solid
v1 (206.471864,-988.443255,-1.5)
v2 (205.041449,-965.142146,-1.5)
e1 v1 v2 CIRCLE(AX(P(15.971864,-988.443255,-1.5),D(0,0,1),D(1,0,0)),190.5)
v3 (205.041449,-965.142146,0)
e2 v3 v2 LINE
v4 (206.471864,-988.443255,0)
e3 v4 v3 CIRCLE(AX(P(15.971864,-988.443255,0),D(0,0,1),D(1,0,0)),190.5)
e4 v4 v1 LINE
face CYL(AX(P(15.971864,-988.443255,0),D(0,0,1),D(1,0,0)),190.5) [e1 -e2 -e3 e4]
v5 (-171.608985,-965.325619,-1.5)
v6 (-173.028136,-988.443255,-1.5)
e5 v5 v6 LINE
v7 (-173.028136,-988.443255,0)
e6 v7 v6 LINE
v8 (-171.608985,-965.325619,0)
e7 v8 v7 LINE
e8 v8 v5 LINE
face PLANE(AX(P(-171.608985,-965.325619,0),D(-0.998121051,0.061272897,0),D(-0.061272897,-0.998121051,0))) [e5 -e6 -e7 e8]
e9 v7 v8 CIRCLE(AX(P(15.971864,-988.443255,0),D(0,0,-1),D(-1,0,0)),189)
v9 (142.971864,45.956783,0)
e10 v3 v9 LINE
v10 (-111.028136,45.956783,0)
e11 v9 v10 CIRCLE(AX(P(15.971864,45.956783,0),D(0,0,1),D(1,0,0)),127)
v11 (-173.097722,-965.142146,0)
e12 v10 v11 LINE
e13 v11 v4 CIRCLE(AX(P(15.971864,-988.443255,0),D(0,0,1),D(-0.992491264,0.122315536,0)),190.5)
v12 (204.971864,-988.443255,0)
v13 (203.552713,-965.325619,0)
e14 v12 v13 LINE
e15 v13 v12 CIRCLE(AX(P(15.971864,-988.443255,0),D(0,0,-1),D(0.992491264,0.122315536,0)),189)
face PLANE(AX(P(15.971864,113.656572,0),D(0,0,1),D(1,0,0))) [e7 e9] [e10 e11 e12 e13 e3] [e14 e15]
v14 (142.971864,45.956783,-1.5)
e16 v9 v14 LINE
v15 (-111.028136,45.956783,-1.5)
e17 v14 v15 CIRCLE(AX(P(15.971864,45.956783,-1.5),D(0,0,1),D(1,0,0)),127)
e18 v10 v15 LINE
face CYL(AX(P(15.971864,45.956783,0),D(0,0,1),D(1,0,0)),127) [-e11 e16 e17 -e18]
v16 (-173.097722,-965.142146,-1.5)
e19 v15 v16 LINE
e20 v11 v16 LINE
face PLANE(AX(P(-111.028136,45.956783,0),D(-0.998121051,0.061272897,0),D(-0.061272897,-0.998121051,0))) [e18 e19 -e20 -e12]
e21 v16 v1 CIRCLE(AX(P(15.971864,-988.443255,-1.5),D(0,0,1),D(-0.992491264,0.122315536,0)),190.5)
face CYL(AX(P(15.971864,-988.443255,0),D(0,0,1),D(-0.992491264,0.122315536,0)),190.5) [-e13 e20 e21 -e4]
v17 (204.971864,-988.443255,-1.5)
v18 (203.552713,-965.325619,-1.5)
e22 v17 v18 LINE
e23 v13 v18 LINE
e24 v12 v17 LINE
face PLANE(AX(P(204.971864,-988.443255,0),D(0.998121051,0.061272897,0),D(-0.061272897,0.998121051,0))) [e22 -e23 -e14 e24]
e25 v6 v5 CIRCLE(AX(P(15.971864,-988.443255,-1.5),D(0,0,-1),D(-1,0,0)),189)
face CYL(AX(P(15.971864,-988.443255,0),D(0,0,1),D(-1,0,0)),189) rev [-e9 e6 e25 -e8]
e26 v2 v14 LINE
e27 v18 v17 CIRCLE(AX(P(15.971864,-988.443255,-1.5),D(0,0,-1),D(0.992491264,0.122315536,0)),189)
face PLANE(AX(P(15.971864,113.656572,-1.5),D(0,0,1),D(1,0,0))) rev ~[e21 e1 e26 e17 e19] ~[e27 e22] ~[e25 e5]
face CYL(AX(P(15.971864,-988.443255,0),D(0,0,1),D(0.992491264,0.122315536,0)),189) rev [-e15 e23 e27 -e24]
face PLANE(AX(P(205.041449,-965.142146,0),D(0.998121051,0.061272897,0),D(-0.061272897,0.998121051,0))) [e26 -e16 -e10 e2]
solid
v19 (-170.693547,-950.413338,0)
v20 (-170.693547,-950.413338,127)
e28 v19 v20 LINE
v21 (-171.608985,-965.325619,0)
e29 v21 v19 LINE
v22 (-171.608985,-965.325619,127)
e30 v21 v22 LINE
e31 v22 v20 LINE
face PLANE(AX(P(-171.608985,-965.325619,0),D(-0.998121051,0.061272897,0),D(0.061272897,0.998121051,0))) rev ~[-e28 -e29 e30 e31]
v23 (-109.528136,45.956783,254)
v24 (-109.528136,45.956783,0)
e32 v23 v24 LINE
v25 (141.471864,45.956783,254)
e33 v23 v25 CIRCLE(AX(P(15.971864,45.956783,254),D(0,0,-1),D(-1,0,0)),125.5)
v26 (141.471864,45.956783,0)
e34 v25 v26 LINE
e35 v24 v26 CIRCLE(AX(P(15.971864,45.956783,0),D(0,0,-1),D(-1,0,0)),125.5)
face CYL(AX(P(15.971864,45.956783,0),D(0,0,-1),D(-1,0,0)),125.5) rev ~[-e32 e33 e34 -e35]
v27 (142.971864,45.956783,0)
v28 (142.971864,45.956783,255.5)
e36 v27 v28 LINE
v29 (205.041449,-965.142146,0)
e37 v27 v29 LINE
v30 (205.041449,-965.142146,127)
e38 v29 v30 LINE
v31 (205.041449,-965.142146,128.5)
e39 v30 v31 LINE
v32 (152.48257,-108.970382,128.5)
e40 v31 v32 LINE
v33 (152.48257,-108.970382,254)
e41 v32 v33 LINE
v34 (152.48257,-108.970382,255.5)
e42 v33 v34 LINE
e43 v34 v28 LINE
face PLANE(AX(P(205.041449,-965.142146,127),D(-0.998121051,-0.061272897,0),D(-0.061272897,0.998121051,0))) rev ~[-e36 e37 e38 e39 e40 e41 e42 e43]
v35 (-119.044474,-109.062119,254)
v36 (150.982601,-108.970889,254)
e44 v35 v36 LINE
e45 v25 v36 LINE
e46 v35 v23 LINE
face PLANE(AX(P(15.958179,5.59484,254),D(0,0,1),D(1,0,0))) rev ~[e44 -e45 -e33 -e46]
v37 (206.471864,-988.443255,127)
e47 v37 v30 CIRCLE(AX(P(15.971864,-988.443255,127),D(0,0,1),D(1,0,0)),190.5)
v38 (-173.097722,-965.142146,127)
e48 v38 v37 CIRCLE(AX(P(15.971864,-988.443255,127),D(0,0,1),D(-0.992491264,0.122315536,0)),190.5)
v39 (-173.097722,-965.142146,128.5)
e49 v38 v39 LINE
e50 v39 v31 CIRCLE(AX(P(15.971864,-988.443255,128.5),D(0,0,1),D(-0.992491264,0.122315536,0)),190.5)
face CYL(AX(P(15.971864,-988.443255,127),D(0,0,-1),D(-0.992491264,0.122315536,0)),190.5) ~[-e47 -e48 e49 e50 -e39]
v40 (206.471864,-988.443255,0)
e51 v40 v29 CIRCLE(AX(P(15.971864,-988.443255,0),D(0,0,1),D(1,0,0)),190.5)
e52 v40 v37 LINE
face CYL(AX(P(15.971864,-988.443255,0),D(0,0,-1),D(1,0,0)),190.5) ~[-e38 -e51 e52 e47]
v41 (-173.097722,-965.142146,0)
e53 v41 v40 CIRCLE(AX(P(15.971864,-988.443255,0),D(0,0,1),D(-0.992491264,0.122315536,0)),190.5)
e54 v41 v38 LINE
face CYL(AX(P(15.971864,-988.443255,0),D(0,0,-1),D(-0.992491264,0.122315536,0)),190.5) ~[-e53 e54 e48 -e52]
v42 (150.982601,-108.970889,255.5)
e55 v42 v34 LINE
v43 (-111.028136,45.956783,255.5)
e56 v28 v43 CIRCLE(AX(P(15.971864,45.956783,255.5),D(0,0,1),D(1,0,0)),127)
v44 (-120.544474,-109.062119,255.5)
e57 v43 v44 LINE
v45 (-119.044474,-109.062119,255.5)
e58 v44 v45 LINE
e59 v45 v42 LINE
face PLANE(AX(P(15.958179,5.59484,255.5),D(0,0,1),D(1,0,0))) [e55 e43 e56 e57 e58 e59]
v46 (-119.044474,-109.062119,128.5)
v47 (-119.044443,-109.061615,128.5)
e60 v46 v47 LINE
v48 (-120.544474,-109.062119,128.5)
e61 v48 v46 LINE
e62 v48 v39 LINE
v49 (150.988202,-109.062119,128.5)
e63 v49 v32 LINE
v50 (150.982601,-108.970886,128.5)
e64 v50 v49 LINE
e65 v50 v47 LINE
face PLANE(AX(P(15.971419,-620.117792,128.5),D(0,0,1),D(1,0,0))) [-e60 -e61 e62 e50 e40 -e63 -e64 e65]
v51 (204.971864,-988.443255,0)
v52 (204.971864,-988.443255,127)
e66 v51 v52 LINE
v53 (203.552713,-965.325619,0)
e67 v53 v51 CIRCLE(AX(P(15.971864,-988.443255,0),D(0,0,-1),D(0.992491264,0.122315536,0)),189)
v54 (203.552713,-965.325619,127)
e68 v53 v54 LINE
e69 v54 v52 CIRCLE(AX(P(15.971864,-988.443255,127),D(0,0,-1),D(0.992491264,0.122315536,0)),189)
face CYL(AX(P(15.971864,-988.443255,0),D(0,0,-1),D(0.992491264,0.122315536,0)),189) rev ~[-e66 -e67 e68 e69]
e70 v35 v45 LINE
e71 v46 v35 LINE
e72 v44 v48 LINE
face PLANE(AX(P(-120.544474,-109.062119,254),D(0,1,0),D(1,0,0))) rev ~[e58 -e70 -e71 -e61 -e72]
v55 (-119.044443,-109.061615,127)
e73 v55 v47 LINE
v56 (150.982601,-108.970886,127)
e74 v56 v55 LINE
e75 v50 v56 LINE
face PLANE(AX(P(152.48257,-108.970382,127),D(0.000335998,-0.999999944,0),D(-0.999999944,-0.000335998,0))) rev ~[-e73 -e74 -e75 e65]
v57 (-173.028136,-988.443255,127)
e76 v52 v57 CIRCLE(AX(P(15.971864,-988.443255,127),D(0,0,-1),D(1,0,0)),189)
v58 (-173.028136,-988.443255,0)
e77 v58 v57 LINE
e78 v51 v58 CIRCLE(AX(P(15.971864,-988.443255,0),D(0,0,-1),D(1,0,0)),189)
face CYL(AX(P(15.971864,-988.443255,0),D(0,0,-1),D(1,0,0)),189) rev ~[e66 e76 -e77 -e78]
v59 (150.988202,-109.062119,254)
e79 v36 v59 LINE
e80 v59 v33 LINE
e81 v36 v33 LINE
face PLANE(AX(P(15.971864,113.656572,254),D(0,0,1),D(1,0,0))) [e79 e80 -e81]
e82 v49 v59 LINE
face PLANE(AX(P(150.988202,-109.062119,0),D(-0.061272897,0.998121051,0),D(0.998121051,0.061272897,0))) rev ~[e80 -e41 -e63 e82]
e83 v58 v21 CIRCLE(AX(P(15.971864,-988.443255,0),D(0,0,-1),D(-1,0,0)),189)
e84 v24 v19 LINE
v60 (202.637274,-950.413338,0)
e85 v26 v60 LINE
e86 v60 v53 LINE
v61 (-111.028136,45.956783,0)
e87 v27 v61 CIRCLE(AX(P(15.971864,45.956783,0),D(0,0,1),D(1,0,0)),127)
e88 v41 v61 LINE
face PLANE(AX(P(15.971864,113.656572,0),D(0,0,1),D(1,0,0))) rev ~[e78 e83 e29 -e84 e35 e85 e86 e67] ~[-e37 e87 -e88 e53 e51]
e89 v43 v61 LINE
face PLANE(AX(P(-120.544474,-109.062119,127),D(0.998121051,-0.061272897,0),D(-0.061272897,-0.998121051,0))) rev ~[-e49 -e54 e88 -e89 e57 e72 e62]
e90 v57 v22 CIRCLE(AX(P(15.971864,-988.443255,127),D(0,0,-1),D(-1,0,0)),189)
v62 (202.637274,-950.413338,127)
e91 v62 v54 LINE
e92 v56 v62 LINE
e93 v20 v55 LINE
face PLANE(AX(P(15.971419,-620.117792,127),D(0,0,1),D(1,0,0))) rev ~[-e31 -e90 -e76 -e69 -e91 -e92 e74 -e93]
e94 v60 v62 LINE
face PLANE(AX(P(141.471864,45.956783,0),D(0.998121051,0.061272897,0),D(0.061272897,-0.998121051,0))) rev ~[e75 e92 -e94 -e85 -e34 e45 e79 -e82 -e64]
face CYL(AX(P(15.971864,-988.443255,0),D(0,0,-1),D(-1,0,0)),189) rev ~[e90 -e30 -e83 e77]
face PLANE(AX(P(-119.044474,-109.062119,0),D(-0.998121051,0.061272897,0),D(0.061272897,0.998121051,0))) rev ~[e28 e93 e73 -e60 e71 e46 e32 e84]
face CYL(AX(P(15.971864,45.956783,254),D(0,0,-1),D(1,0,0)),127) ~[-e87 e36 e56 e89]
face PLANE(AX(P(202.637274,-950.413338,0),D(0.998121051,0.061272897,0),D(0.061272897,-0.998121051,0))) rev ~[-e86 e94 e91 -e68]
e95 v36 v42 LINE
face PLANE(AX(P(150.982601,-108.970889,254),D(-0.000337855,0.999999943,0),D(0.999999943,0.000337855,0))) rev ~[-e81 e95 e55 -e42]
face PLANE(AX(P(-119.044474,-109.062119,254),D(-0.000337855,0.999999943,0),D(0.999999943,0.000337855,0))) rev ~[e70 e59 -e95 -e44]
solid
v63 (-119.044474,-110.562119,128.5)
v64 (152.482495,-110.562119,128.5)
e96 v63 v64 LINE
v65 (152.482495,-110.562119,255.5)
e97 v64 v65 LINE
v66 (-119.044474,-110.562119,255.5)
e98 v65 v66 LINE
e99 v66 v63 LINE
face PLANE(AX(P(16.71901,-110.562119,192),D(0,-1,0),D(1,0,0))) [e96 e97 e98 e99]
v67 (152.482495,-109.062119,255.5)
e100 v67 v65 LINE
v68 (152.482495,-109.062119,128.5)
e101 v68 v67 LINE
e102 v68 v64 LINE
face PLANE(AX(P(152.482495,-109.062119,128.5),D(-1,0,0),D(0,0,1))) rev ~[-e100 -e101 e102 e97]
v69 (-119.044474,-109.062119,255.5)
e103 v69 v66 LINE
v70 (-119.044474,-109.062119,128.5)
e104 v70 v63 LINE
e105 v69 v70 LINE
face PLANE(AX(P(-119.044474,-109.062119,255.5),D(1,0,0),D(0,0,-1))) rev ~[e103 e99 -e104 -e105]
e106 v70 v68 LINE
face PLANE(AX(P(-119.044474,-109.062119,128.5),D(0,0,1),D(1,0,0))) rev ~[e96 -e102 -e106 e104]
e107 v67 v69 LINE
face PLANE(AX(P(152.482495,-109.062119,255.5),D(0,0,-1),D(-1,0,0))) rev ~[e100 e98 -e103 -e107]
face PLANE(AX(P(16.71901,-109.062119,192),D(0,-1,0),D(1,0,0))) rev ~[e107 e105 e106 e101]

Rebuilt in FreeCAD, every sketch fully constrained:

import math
import FreeCAD as App
import Part
import Sketcher
Q = App.Units.Quantity

doc = App.newDocument("Part")
body = doc.addObject("PartDesign::Body", "Body")

sketch1 = doc.addObject("Sketcher::SketchObject", "Sketch")
body.addObject(sketch1)
sketch1.AttachmentSupport = (doc.XY_Plane, [""])
sketch1.MapMode = "FlatFace"
sketch1.addGeometry(Part.LineSegment(App.Vector(141.5, 46, 0), App.Vector(151, -109.1, 0)), False)
sketch1.addGeometry(Part.LineSegment(App.Vector(151, -109.1, 0), App.Vector(152.5, -109, 0)), False)
sketch1.addGeometry(Part.LineSegment(App.Vector(152.5, -109, 0), App.Vector(143, 46, 0)), False)
sketch1.addGeometry(Part.ArcOfCircle(Part.Circle(App.Vector(16, 46, 0), App.Vector(0, 0, 1), 127), math.radians(0), math.radians(180)), False)
sketch1.addGeometry(Part.LineSegment(App.Vector(-111, 46, 0), App.Vector(-120.5, -109.1, 0)), False)
sketch1.addGeometry(Part.LineSegment(App.Vector(-120.5, -109.1, 0), App.Vector(-119, -109.1, 0)), False)
sketch1.addGeometry(Part.LineSegment(App.Vector(-119, -109.1, 0), App.Vector(-109.5, 46, 0)), False)
sketch1.addGeometry(Part.ArcOfCircle(Part.Circle(App.Vector(16, 46, 0), App.Vector(0, 0, 1), 125.5), math.radians(0), math.radians(180)), False)
sketch1.addConstraint(Sketcher.Constraint("Coincident", 0, 2, 1, 1))
sketch1.addConstraint(Sketcher.Constraint("Coincident", 1, 2, 2, 1))
sketch1.addConstraint(Sketcher.Constraint("Coincident", 2, 2, 3, 1))
sketch1.addConstraint(Sketcher.Constraint("Coincident", 3, 2, 4, 1))
sketch1.addConstraint(Sketcher.Constraint("Coincident", 4, 2, 5, 1))
sketch1.addConstraint(Sketcher.Constraint("Coincident", 5, 2, 6, 1))
sketch1.addConstraint(Sketcher.Constraint("Coincident", 6, 2, 7, 2))
sketch1.addConstraint(Sketcher.Constraint("Coincident", 7, 1, 0, 1))
sketch1.addConstraint(Sketcher.Constraint("Horizontal", 5))
sketch1.addConstraint(Sketcher.Constraint("Coincident", 7, 3, 3, 3))
sketch1.addConstraint(Sketcher.Constraint("Perpendicular", 0, 1))
sketch1.addConstraint(Sketcher.Constraint("Perpendicular", 1, 2))
sketch1.addConstraint(Sketcher.Constraint("Parallel", 4, 6))
sketch1.addConstraint(Sketcher.Constraint("Horizontal", 7, 3, 2, 2))
sketch1.addConstraint(Sketcher.Constraint("Horizontal", 2, 2, 3, 2))
sketch1.addConstraint(Sketcher.Constraint("Horizontal", 0, 2, 4, 2))
sketch1.addConstraint(Sketcher.Constraint("Horizontal", 3, 2, 6, 2))
sketch1.addConstraint(Sketcher.Constraint("Horizontal", 6, 2, 7, 1))
sketch1.addConstraint(Sketcher.Constraint("Equal", 0, 4))
sketch1.addConstraint(Sketcher.Constraint("Radius", 3, Q("127 mm")))
sketch1.addConstraint(Sketcher.Constraint("Radius", 7, Q("125.5 mm")))
sketch1.addConstraint(Sketcher.Constraint("DistanceX", -1, 1, 0, 2, Q("150.988202 mm")))
sketch1.addConstraint(Sketcher.Constraint("DistanceY", 0, 2, 3, 3, Q("155.018902 mm")))
sketch1.addConstraint(Sketcher.Constraint("DistanceY", 0, 2, -1, 1, Q("109.062119 mm")))
sketch1.addConstraint(Sketcher.Constraint("Distance", 0, Q("155.310723 mm")))
pad1 = doc.addObject("PartDesign::Pad", "Pad")
body.addObject(pad1)
pad1.Profile = sketch1
pad1.Length = 254

sketch2 = doc.addObject("Sketcher::SketchObject", "Sketch001")
body.addObject(sketch2)
sketch2.AttachmentSupport = (doc.XY_Plane, [""])
sketch2.MapMode = "FlatFace"
sketch2.addGeometry(Part.ArcOfCircle(Part.Circle(App.Vector(16, -988, 0), App.Vector(0, 0, 1), 191), math.radians(0), math.radians(7.03)), False)
sketch2.addGeometry(Part.LineSegment(App.Vector(205, -965, 0), App.Vector(143, 46, 0)), False)
sketch2.addGeometry(Part.ArcOfCircle(Part.Circle(App.Vector(16, 46, 0), App.Vector(0, 0, 1), 127), math.radians(0), math.radians(180)), False)
sketch2.addGeometry(Part.LineSegment(App.Vector(-111, 46, 0), App.Vector(-173, -965, 0)), False)
sketch2.addGeometry(Part.ArcOfCircle(Part.Circle(App.Vector(16, -988, 0), App.Vector(0, 0, 1), 190), math.radians(173), math.radians(360)), False)
sketch2.addGeometry(Part.LineSegment(App.Vector(141, 46, 0), App.Vector(203, -950, 0)), False)
sketch2.addGeometry(Part.LineSegment(App.Vector(203, -950, 0), App.Vector(204, -965, 0)), False)
sketch2.addGeometry(Part.ArcOfCircle(Part.Circle(App.Vector(16, -988, 0), App.Vector(0, 0, 1), 189), math.radians(0), math.radians(7.03)), False)
sketch2.addGeometry(Part.ArcOfCircle(Part.Circle(App.Vector(16, -988, 0), App.Vector(0, 0, 1), 189), math.radians(180), math.radians(360)), False)
sketch2.addGeometry(Part.ArcOfCircle(Part.Circle(App.Vector(16, -988, 0), App.Vector(0, 0, 1), 189), math.radians(172.97), math.radians(180)), False)
sketch2.addGeometry(Part.LineSegment(App.Vector(-172, -965, 0), App.Vector(-171, -950, 0)), False)
sketch2.addGeometry(Part.LineSegment(App.Vector(-171, -950, 0), App.Vector(-110, 46, 0)), False)
sketch2.addGeometry(Part.ArcOfCircle(Part.Circle(App.Vector(16, 46, 0), App.Vector(0, 0, 1), 126), math.radians(0), math.radians(180)), False)
sketch2.addConstraint(Sketcher.Constraint("Coincident", 0, 2, 1, 1))
sketch2.addConstraint(Sketcher.Constraint("Coincident", 1, 2, 2, 1))
sketch2.addConstraint(Sketcher.Constraint("Coincident", 2, 2, 3, 1))
sketch2.addConstraint(Sketcher.Constraint("Coincident", 3, 2, 4, 1))
sketch2.addConstraint(Sketcher.Constraint("Tangent", 4, 2, 0, 1))
sketch2.addConstraint(Sketcher.Constraint("Coincident", 5, 2, 6, 1))
sketch2.addConstraint(Sketcher.Constraint("Coincident", 6, 2, 7, 2))
sketch2.addConstraint(Sketcher.Constraint("Tangent", 7, 1, 8, 2))
sketch2.addConstraint(Sketcher.Constraint("Tangent", 8, 1, 9, 2))
sketch2.addConstraint(Sketcher.Constraint("Coincident", 9, 1, 10, 1))
sketch2.addConstraint(Sketcher.Constraint("Coincident", 10, 2, 11, 1))
sketch2.addConstraint(Sketcher.Constraint("Coincident", 11, 2, 12, 2))
sketch2.addConstraint(Sketcher.Constraint("Coincident", 12, 1, 5, 1))
sketch2.addConstraint(Sketcher.Constraint("Coincident", 7, 3, 0, 3))
sketch2.addConstraint(Sketcher.Constraint("Coincident", 12, 3, 2, 3))
sketch2.addConstraint(Sketcher.Constraint("Equal", 0, 4))
sketch2.addConstraint(Sketcher.Constraint("Equal", 7, 8))
sketch2.addConstraint(Sketcher.Constraint("Equal", 8, 9))
sketch2.addConstraint(Sketcher.Constraint("Parallel", 1, 5))
sketch2.addConstraint(Sketcher.Constraint("Parallel", 5, 6))
sketch2.addConstraint(Sketcher.Constraint("Parallel", 3, 10))
sketch2.addConstraint(Sketcher.Constraint("Parallel", 3, 11))
sketch2.addConstraint(Sketcher.Constraint("Horizontal", 12, 3, 1, 2))
sketch2.addConstraint(Sketcher.Constraint("Horizontal", 1, 2, 2, 2))
sketch2.addConstraint(Sketcher.Constraint("Horizontal", 0, 2, 3, 2))
sketch2.addConstraint(Sketcher.Constraint("Horizontal", 9, 3, 4, 2))
sketch2.addConstraint(Sketcher.Constraint("Horizontal", 4, 2, 7, 1))
sketch2.addConstraint(Sketcher.Constraint("Horizontal", 7, 1, 8, 1))
sketch2.addConstraint(Sketcher.Constraint("Horizontal", 6, 2, 9, 1))
sketch2.addConstraint(Sketcher.Constraint("Horizontal", 5, 2, 10, 2))
sketch2.addConstraint(Sketcher.Constraint("Horizontal", 2, 2, 11, 2))
sketch2.addConstraint(Sketcher.Constraint("Vertical", 0, 3, 2, 3))
sketch2.addConstraint(Sketcher.Constraint("Radius", 2, Q("127 mm")))
sketch2.addConstraint(Sketcher.Constraint("Radius", 7, Q("189 mm")))
sketch2.addConstraint(Sketcher.Constraint("Radius", 0, Q("190.5 mm")))
sketch2.addConstraint(Sketcher.Constraint("Radius", 12, Q("125.5 mm")))
sketch2.addConstraint(Sketcher.Constraint("Distance", 1, Q("1013.002309 mm")))
sketch2.addConstraint(Sketcher.Constraint("DistanceX", -1, 1, 0, 2, Q("205.041449 mm")))
sketch2.addConstraint(Sketcher.Constraint("DistanceY", 6, 2, -1, 1, Q("965.325619 mm")))
sketch2.addConstraint(Sketcher.Constraint("DistanceY", 0, 3, 2, 3, Q("1034.400038 mm")))
sketch2.addConstraint(Sketcher.Constraint("DistanceX", 5, 2, 4, 2, Q("3.83459 mm")))
pad2 = doc.addObject("PartDesign::Pad", "Pad001")
body.addObject(pad2)
pad2.Profile = sketch2
pad2.Length = 127

sketch3 = doc.addObject("Sketcher::SketchObject", "Sketch002")
body.addObject(sketch3)
sketch3.AttachmentSupport = (doc.XY_Plane, [""])
sketch3.MapMode = "FlatFace"
sketch3.AttachmentOffset = App.Placement(App.Vector(0, 0, 254), App.Rotation())
sketch3.addGeometry(Part.LineSegment(App.Vector(-119, -109.1, 0), App.Vector(151, -109, 0)), False)
sketch3.addGeometry(Part.LineSegment(App.Vector(151, -109, 0), App.Vector(152.5, -109, 0)), False)
sketch3.addGeometry(Part.LineSegment(App.Vector(152.5, -109, 0), App.Vector(143, 46, 0)), False)
sketch3.addGeometry(Part.ArcOfCircle(Part.Circle(App.Vector(16, 46, 0), App.Vector(0, 0, 1), 127), math.radians(0), math.radians(180)), False)
sketch3.addGeometry(Part.LineSegment(App.Vector(-111, 46, 0), App.Vector(-120.5, -109.1, 0)), False)
sketch3.addGeometry(Part.LineSegment(App.Vector(-120.5, -109.1, 0), App.Vector(-119, -109.1, 0)), False)
sketch3.addConstraint(Sketcher.Constraint("Coincident", 0, 2, 1, 1))
sketch3.addConstraint(Sketcher.Constraint("Coincident", 1, 2, 2, 1))
sketch3.addConstraint(Sketcher.Constraint("Coincident", 2, 2, 3, 1))
sketch3.addConstraint(Sketcher.Constraint("Coincident", 3, 2, 4, 1))
sketch3.addConstraint(Sketcher.Constraint("Coincident", 4, 2, 5, 1))
sketch3.addConstraint(Sketcher.Constraint("Coincident", 5, 2, 0, 1))
sketch3.addConstraint(Sketcher.Constraint("Horizontal", 5))
sketch3.addConstraint(Sketcher.Constraint("Parallel", 0, 1))
sketch3.addConstraint(Sketcher.Constraint("Horizontal", 3, 3, 2, 2))
sketch3.addConstraint(Sketcher.Constraint("Horizontal", 2, 2, 3, 2))
sketch3.addConstraint(Sketcher.Constraint("Radius", 3, Q("127 mm")))
sketch3.addConstraint(Sketcher.Constraint("DistanceX", 5, 1, 5, 2, Q("1.5 mm")))
sketch3.addConstraint(Sketcher.Constraint("DistanceX", -1, 1, 0, 2, Q("150.982601 mm")))
sketch3.addConstraint(Sketcher.Constraint("DistanceY", 4, 2, 3, 2, Q("155.018902 mm")))
sketch3.addConstraint(Sketcher.Constraint("Distance", 0, Q("270.027091 mm")))
sketch3.addConstraint(Sketcher.Constraint("Distance", 1, Q("1.499969 mm")))
sketch3.addConstraint(Sketcher.Constraint("DistanceY", 0, 2, -1, 1, Q("108.970889 mm")))
sketch3.addConstraint(Sketcher.Constraint("DistanceY", 4, 2, -1, 1, Q("109.062119 mm")))
sketch3.addConstraint(Sketcher.Constraint("Distance", 2, Q("155.218813 mm")))
pad3 = doc.addObject("PartDesign::Pad", "Pad002")
body.addObject(pad3)
pad3.Profile = sketch3
pad3.Length = 1.5

sketch4 = doc.addObject("Sketcher::SketchObject", "Sketch003")
body.addObject(sketch4)
sketch4.AttachmentSupport = (doc.XY_Plane, [""])
sketch4.MapMode = "FlatFace"
sketch4.AttachmentOffset = App.Placement(App.Vector(0, 0, 127), App.Rotation())
sketch4.addGeometry(Part.LineSegment(App.Vector(152, -109, 0), App.Vector(-121, -109, 0)), False)
sketch4.addGeometry(Part.LineSegment(App.Vector(-121, -109, 0), App.Vector(-173, -965, 0)), False)
sketch4.addGeometry(Part.ArcOfCircle(Part.Circle(App.Vector(16, -988, 0), App.Vector(0, 0, 1), 190), math.radians(173), math.radians(367)), False)
sketch4.addGeometry(Part.LineSegment(App.Vector(205, -965, 0), App.Vector(152, -109, 0)), False)
sketch4.addConstraint(Sketcher.Constraint("Coincident", 0, 2, 1, 1))
sketch4.addConstraint(Sketcher.Constraint("Coincident", 1, 2, 2, 1))
sketch4.addConstraint(Sketcher.Constraint("Coincident", 2, 2, 3, 1))
sketch4.addConstraint(Sketcher.Constraint("Coincident", 3, 2, 0, 1))
sketch4.addConstraint(Sketcher.Constraint("Horizontal", 1, 2, 2, 2))
sketch4.addConstraint(Sketcher.Constraint("Radius", 2, Q("190.5 mm")))
sketch4.addConstraint(Sketcher.Constraint("Distance", 0, Q("273.02706 mm")))
sketch4.addConstraint(Sketcher.Constraint("DistanceY", 0, 2, -1, 1, Q("109.062119 mm")))
sketch4.addConstraint(Sketcher.Constraint("DistanceX", -1, 1, 2, 2, Q("205.041449 mm")))
sketch4.addConstraint(Sketcher.Constraint("DistanceX", -1, 1, 3, 2, Q("152.48257 mm")))
sketch4.addConstraint(Sketcher.Constraint("DistanceY", 2, 3, 1, 2, Q("23.30111 mm")))
sketch4.addConstraint(Sketcher.Constraint("Distance", 1, Q("857.691586 mm")))
sketch4.addConstraint(Sketcher.Constraint("Distance", 3, Q("857.783495 mm")))
pad4 = doc.addObject("PartDesign::Pad", "Pad003")
body.addObject(pad4)
pad4.Profile = sketch4
pad4.Length = 1.5
body2 = doc.addObject("PartDesign::Body", "Body001")

sketch5 = doc.addObject("Sketcher::SketchObject", "Sketch004")
body2.addObject(sketch5)
sketch5.AttachmentSupport = (doc.getObject("XY_Plane001"), [""])
sketch5.MapMode = "FlatFace"
sketch5.addGeometry(Part.ArcOfCircle(Part.Circle(App.Vector(16, -988, 0), App.Vector(0, 0, 1), 191), math.radians(0), math.radians(7.03)), False)
sketch5.addGeometry(Part.LineSegment(App.Vector(205, -965, 0), App.Vector(143, 46, 0)), False)
sketch5.addGeometry(Part.ArcOfCircle(Part.Circle(App.Vector(16, 46, 0), App.Vector(0, 0, 1), 127), math.radians(0), math.radians(180)), False)
sketch5.addGeometry(Part.LineSegment(App.Vector(-111, 46, 0), App.Vector(-173, -965, 0)), False)
sketch5.addGeometry(Part.ArcOfCircle(Part.Circle(App.Vector(16, -988, 0), App.Vector(0, 0, 1), 190), math.radians(173), math.radians(360)), False)
sketch5.addGeometry(Part.ArcOfCircle(Part.Circle(App.Vector(16, -988, 0), App.Vector(0, 0, 1), 189), math.radians(172.97), math.radians(180)), False)
sketch5.addGeometry(Part.LineSegment(App.Vector(-172, -965, 0), App.Vector(-173, -988, 0)), False)
sketch5.addGeometry(Part.ArcOfCircle(Part.Circle(App.Vector(16, -988, 0), App.Vector(0, 0, 1), 189), math.radians(0), math.radians(7.03)), False)
sketch5.addGeometry(Part.LineSegment(App.Vector(205, -988, 0), App.Vector(204, -965, 0)), False)
sketch5.addConstraint(Sketcher.Constraint("Coincident", 0, 2, 1, 1))
sketch5.addConstraint(Sketcher.Constraint("Coincident", 1, 2, 2, 1))
sketch5.addConstraint(Sketcher.Constraint("Coincident", 2, 2, 3, 1))
sketch5.addConstraint(Sketcher.Constraint("Coincident", 3, 2, 4, 1))
sketch5.addConstraint(Sketcher.Constraint("Tangent", 4, 2, 0, 1))
sketch5.addConstraint(Sketcher.Constraint("Coincident", 5, 1, 6, 1))
sketch5.addConstraint(Sketcher.Constraint("Coincident", 6, 2, 5, 2))
sketch5.addConstraint(Sketcher.Constraint("Coincident", 7, 1, 8, 1))
sketch5.addConstraint(Sketcher.Constraint("Coincident", 8, 2, 7, 2))
sketch5.addConstraint(Sketcher.Constraint("Coincident", 5, 3, 0, 3))
sketch5.addConstraint(Sketcher.Constraint("Coincident", 7, 3, 0, 3))
sketch5.addConstraint(Sketcher.Constraint("Equal", 0, 4))
sketch5.addConstraint(Sketcher.Constraint("Equal", 5, 7))
sketch5.addConstraint(Sketcher.Constraint("Parallel", 3, 6))
sketch5.addConstraint(Sketcher.Constraint("Parallel", 1, 8))
sketch5.addConstraint(Sketcher.Constraint("Horizontal", 2, 3, 1, 2))
sketch5.addConstraint(Sketcher.Constraint("Horizontal", 1, 2, 2, 2))
sketch5.addConstraint(Sketcher.Constraint("Horizontal", 0, 2, 3, 2))
sketch5.addConstraint(Sketcher.Constraint("Horizontal", 7, 3, 4, 2))
sketch5.addConstraint(Sketcher.Constraint("Horizontal", 4, 2, 6, 2))
sketch5.addConstraint(Sketcher.Constraint("Horizontal", 6, 2, 7, 1))
sketch5.addConstraint(Sketcher.Constraint("Horizontal", 5, 1, 8, 2))
sketch5.addConstraint(Sketcher.Constraint("Radius", 2, Q("127 mm")))
sketch5.addConstraint(Sketcher.Constraint("Radius", 5, Q("189 mm")))
sketch5.addConstraint(Sketcher.Constraint("Radius", 0, Q("190.5 mm")))
sketch5.addConstraint(Sketcher.Constraint("Distance", 1, Q("1013.002309 mm")))
sketch5.addConstraint(Sketcher.Constraint("DistanceX", -1, 1, 0, 2, Q("205.041449 mm")))
sketch5.addConstraint(Sketcher.Constraint("DistanceY", 8, 2, -1, 1, Q("965.325619 mm")))
sketch5.addConstraint(Sketcher.Constraint("DistanceY", 0, 3, 2, 3, Q("1034.400038 mm")))
pad5 = doc.addObject("PartDesign::Pad", "Pad004")
body2.addObject(pad5)
pad5.Profile = sketch5
pad5.Length = 1.5
pad5.Reversed = True
body3 = doc.addObject("PartDesign::Body", "Body002")

sketch6 = doc.addObject("Sketcher::SketchObject", "Sketch005")
body3.addObject(sketch6)
sketch6.AttachmentSupport = (doc.getObject("XZ_Plane002"), [""])
sketch6.MapMode = "FlatFace"
sketch6.AttachmentOffset = App.Placement(App.Vector(0, 0, 109.062119), App.Rotation())
sketch6.addGeometry(Part.LineSegment(App.Vector(152, 256, 0), App.Vector(-119, 256, 0)), False)
sketch6.addGeometry(Part.LineSegment(App.Vector(-119, 256, 0), App.Vector(-119, 128, 0)), False)
sketch6.addGeometry(Part.LineSegment(App.Vector(-119, 128, 0), App.Vector(152, 128, 0)), False)
sketch6.addGeometry(Part.LineSegment(App.Vector(152, 128, 0), App.Vector(152, 256, 0)), False)
sketch6.addConstraint(Sketcher.Constraint("Coincident", 0, 2, 1, 1))
sketch6.addConstraint(Sketcher.Constraint("Coincident", 1, 2, 2, 1))
sketch6.addConstraint(Sketcher.Constraint("Coincident", 2, 2, 3, 1))
sketch6.addConstraint(Sketcher.Constraint("Coincident", 3, 2, 0, 1))
sketch6.addConstraint(Sketcher.Constraint("Horizontal", 0))
sketch6.addConstraint(Sketcher.Constraint("Vertical", 1))
sketch6.addConstraint(Sketcher.Constraint("Horizontal", 2))
sketch6.addConstraint(Sketcher.Constraint("Vertical", 3))
sketch6.addConstraint(Sketcher.Constraint("DistanceY", 1, 2, 1, 1, Q("127 mm")))
sketch6.addConstraint(Sketcher.Constraint("DistanceY", -1, 1, 0, 2, Q("255.5 mm")))
sketch6.addConstraint(Sketcher.Constraint("DistanceX", 0, 2, 0, 1, Q("271.526969 mm")))
sketch6.addConstraint(Sketcher.Constraint("DistanceX", 0, 2, -1, 1, Q("119.044474 mm")))
pad6 = doc.addObject("PartDesign::Pad", "Pad005")
body3.addObject(pad6)
pad6.Profile = sketch6
pad6.Length = 1.5

doc.recompute()
